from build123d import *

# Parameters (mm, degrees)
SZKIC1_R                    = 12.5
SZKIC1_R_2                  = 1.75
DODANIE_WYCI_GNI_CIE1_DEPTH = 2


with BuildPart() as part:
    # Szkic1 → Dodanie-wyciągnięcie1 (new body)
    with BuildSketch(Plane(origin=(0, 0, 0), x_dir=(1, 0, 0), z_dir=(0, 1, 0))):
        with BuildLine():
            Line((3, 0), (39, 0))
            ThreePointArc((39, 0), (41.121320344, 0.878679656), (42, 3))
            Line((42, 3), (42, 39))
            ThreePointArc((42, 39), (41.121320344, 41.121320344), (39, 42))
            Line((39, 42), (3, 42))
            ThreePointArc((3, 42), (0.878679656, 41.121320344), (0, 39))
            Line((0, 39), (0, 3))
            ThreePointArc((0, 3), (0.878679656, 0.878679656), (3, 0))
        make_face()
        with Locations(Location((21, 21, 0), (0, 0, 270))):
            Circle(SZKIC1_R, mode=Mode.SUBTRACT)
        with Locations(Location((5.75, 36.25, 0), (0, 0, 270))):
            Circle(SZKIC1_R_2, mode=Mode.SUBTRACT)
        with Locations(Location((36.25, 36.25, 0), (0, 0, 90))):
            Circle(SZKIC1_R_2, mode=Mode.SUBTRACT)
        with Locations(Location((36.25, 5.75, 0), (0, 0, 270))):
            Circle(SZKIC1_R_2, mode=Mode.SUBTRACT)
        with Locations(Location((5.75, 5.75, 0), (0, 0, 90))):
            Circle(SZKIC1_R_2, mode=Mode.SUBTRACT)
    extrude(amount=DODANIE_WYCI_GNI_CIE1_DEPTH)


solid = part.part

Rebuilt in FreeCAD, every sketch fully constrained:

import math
import FreeCAD as App
import Part
import Sketcher

V = App.Vector
Q = App.Units.Quantity

doc = App.newDocument("Part")
body = doc.addObject("PartDesign::Body", "Body")

# Sketch on XZ plane
sketch1 = body.newObject("Sketcher::SketchObject", "Sketch")
sketch1.AttachmentSupport = (doc.getObject("XZ_Plane"), [""])
sketch1.MapMode = "FlatFace"
sketch1.addGeometry([
    Part.LineSegment(V(3, 0, 0), V(39, 0, 0)),  # 0
    Part.ArcOfCircle(Part.Circle(V(39, -3, 0), V(0, 0, 1), 3), math.radians(0), math.radians(90)),  # 1
    Part.LineSegment(V(42, -3, 0), V(42, -39, 0)),  # 2
    Part.ArcOfCircle(Part.Circle(V(39, -39, 0), V(0, 0, 1), 3), math.radians(-90), math.radians(0)),  # 3
    Part.LineSegment(V(39, -42, 0), V(3, -42, 0)),  # 4
    Part.ArcOfCircle(Part.Circle(V(3, -39, 0), V(0, 0, 1), 3), math.radians(180), math.radians(270)),  # 5
    Part.LineSegment(V(0, -39, 0), V(0, -3, 0)),  # 6
    Part.ArcOfCircle(Part.Circle(V(3, -3, 0), V(0, 0, 1), 3), math.radians(90), math.radians(180)),  # 7
    Part.Circle(V(5.75, -5.75, 0), V(0, 0, 1), 1.75),  # 8
    Part.Circle(V(36.25, -5.75, 0), V(0, 0, 1), 1.75),  # 9
    Part.Circle(V(5.75, -36.25, 0), V(0, 0, 1), 1.75),  # 10
    Part.Circle(V(21, -21, 0), V(0, 0, 1), 12.5),  # 11
    Part.Circle(V(36.25, -36.25, 0), V(0, 0, 1), 1.75),  # 12
], False)
sketch1.addConstraint([
    Sketcher.Constraint("Tangent", 0, 2, 1, 2),
    Sketcher.Constraint("Tangent", 1, 1, 2, 1),
    Sketcher.Constraint("Tangent", 2, 2, 3, 2),
    Sketcher.Constraint("Tangent", 3, 1, 4, 1),
    Sketcher.Constraint("Tangent", 4, 2, 5, 2),
    Sketcher.Constraint("Tangent", 5, 1, 6, 1),
    Sketcher.Constraint("Tangent", 6, 2, 7, 2),
    Sketcher.Constraint("Tangent", 7, 1, 0, 1),
    Sketcher.Constraint("Horizontal", 0),
    Sketcher.Constraint("Vertical", 2),
    Sketcher.Constraint("Horizontal", 4),
    Sketcher.Constraint("Vertical", 6),
    Sketcher.Constraint("Equal", 1, 3),
    Sketcher.Constraint("Equal", 3, 5),
    Sketcher.Constraint("Equal", 5, 7),
    Sketcher.Constraint("Equal", 8, 9),
    Sketcher.Constraint("Equal", 9, 10),
    Sketcher.Constraint("Equal", 10, 12),
    Sketcher.Constraint("PointOnObject", 0, 2, -1),
    Sketcher.Constraint("PointOnObject", 5, 1, -2),
    Sketcher.Constraint("Horizontal", 8, 3, 9, 3),
    Sketcher.Constraint("Horizontal", 10, 3, 12, 3),
    Sketcher.Constraint("Vertical", 8, 3, 10, 3),
    Sketcher.Constraint("Vertical", 9, 3, 12, 3),
    Sketcher.Constraint("Equal", 4, 2),
    Sketcher.Constraint("Diameter", 11, Q("25 mm")),
    Sketcher.Constraint("Radius", 1, Q("3 mm")),
    Sketcher.Constraint("Diameter", 8, Q("3.5 mm")),
    Sketcher.Constraint("DistanceX", 0, 1, 0, 2, Q("36 mm")),
    Sketcher.Constraint("DistanceX", -1, 1, 11, 3, Q("21 mm")),
    Sketcher.Constraint("DistanceY", 11, 3, -1, 1, Q("21 mm")),
    Sketcher.Constraint("DistanceX", 8, 3, 9, 3, Q("30.5 mm")),
    Sketcher.Constraint("DistanceY", 10, 3, 8, 3, Q("30.5 mm")),
    Sketcher.Constraint("DistanceX", -1, 1, 8, 3, Q("5.75 mm")),
    Sketcher.Constraint("DistanceY", 8, 3, -1, 1, Q("5.75 mm")),
])
pad1 = body.newObject("PartDesign::Pad", "Pad")
pad1.Profile = sketch1
pad1.Length = 2
pad1.Reversed = True

doc.recompute()
